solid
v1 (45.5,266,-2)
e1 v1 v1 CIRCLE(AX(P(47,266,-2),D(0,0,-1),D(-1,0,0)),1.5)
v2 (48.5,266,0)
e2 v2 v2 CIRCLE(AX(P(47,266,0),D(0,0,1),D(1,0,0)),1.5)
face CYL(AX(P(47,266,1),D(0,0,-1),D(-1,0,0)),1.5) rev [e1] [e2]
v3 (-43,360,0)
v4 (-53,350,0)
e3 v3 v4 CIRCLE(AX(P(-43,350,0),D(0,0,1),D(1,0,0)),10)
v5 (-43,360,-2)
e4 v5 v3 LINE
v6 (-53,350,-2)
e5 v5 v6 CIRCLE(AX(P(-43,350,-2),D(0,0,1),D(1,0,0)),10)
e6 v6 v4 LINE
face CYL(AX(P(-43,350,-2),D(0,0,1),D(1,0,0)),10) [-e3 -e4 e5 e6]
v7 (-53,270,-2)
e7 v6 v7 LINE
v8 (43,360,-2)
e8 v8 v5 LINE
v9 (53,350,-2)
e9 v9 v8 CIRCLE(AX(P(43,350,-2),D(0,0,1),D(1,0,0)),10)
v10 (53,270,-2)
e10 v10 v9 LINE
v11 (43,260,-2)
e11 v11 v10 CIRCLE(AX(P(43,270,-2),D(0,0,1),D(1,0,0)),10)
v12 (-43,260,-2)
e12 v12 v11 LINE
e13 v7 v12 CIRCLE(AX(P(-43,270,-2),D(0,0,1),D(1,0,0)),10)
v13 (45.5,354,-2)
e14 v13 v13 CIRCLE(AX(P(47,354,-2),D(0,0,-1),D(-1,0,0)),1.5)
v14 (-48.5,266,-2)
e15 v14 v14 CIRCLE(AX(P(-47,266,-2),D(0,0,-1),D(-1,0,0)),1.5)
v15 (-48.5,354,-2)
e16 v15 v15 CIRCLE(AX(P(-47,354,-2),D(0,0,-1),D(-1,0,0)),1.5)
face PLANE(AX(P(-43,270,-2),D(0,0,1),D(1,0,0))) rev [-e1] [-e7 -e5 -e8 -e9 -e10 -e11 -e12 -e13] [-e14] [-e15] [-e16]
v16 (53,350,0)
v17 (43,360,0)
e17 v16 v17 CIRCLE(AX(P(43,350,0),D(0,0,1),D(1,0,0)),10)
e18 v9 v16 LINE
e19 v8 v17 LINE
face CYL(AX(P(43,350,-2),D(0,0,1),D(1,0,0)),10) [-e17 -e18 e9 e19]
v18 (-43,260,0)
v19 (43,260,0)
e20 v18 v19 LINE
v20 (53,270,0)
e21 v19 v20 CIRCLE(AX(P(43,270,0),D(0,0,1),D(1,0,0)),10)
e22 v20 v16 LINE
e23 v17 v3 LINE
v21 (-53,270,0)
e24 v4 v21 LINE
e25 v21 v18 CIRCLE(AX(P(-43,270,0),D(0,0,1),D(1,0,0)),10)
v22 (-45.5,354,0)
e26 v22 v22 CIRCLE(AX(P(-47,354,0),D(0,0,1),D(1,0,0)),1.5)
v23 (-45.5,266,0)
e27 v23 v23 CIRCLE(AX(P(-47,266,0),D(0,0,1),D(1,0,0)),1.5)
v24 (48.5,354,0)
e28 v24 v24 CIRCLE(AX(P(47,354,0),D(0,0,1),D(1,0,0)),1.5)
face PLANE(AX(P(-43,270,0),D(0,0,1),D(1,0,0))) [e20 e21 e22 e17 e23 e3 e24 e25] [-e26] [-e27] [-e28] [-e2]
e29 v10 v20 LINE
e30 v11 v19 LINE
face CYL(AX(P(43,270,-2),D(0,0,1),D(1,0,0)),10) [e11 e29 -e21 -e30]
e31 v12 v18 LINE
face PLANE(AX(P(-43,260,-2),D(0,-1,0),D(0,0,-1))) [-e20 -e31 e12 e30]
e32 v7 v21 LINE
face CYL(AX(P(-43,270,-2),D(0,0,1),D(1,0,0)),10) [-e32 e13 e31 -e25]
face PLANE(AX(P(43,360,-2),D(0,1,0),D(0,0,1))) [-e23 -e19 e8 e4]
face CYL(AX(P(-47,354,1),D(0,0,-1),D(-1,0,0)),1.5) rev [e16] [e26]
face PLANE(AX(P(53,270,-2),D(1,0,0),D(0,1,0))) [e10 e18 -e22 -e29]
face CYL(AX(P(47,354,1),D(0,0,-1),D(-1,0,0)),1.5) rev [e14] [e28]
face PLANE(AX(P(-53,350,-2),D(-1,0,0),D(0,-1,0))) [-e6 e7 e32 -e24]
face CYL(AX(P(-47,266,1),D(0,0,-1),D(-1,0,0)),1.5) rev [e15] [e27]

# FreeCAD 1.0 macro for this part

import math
import FreeCAD as App
import Part
import Sketcher

V = App.Vector
Q = App.Units.Quantity

doc = App.newDocument("Part")
params = doc.addObject("Spreadsheet::Sheet", "Params")
for row, (alias, value) in enumerate([
    ("sketch1_radius", "10 mm"),
    ("sketch1_width", "86 mm"),
    ("sketch1_height", "80 mm"),
    ("pad1_length", "2 mm"),
    ("sketch2_diameter", "3 mm"),
    ("pocket1_length", "3 mm"),
], start=1):
    params.set(f"A{row}", alias)
    params.set(f"B{row}", "=" + value)
    params.setAlias(f"B{row}", alias)

body = doc.addObject("PartDesign::Body", "Body")

sketch1 = body.newObject("Sketcher::SketchObject", "Sketch")
sketch1.AttachmentSupport = (doc.getObject("XY_Plane"), [""])
sketch1.MapMode = "FlatFace"
sketch1.addGeometry(Part.LineSegment(V(-43, 260, 0), V(43, 260, 0)), False)
sketch1.addGeometry(Part.ArcOfCircle(Part.Circle(V(43, 270, 0), V(0, 0, 1), 10), math.radians(-90), math.radians(0)), False)
sketch1.addGeometry(Part.LineSegment(V(53, 270, 0), V(53, 350, 0)), False)
sketch1.addGeometry(Part.ArcOfCircle(Part.Circle(V(43, 350, 0), V(0, 0, 1), 10), math.radians(0), math.radians(90)), False)
sketch1.addGeometry(Part.LineSegment(V(43, 360, 0), V(-43, 360, 0)), False)
sketch1.addGeometry(Part.ArcOfCircle(Part.Circle(V(-43, 350, 0), V(0, 0, 1), 10), math.radians(90), math.radians(180)), False)
sketch1.addGeometry(Part.LineSegment(V(-53, 350, 0), V(-53, 270, 0)), False)
sketch1.addGeometry(Part.ArcOfCircle(Part.Circle(V(-43, 270, 0), V(0, 0, 1), 10), math.radians(180), math.radians(270)), False)
sketch1.addConstraint(Sketcher.Constraint("Tangent", 0, 2, 1, 1))
sketch1.addConstraint(Sketcher.Constraint("Tangent", 1, 2, 2, 1))
sketch1.addConstraint(Sketcher.Constraint("Tangent", 2, 2, 3, 1))
sketch1.addConstraint(Sketcher.Constraint("Tangent", 3, 2, 4, 1))
sketch1.addConstraint(Sketcher.Constraint("Tangent", 4, 2, 5, 1))
sketch1.addConstraint(Sketcher.Constraint("Tangent", 5, 2, 6, 1))
sketch1.addConstraint(Sketcher.Constraint("Tangent", 6, 2, 7, 1))
sketch1.addConstraint(Sketcher.Constraint("Tangent", 7, 2, 0, 1))
sketch1.addConstraint(Sketcher.Constraint("Horizontal", 0))
sketch1.addConstraint(Sketcher.Constraint("Vertical", 2))
sketch1.addConstraint(Sketcher.Constraint("Horizontal", 4))
sketch1.addConstraint(Sketcher.Constraint("Vertical", 6))
sketch1.addConstraint(Sketcher.Constraint("Equal", 1, 3))
sketch1.addConstraint(Sketcher.Constraint("Equal", 3, 5))
sketch1.addConstraint(Sketcher.Constraint("Equal", 5, 7))
sketch1.addConstraint(Sketcher.Constraint("Radius", 1, Q("10 mm")))
sketch1.addConstraint(Sketcher.Constraint("DistanceX", 0, 1, 0, 2, Q("86 mm")))
sketch1.addConstraint(Sketcher.Constraint("DistanceY", 2, 1, 2, 2, Q("80 mm")))
sketch1.addConstraint(Sketcher.Constraint("DistanceX", -1, 1, 1, 3, Q("43 mm")))
sketch1.addConstraint(Sketcher.Constraint("DistanceY", -1, 1, 1, 3, Q("270 mm")))
sketch1.setExpression("Constraints[15]", "Params.sketch1_radius")
sketch1.setExpression("Constraints[16]", "Params.sketch1_width")
sketch1.setExpression("Constraints[17]", "Params.sketch1_height")
pad1 = body.newObject("PartDesign::Pad", "Pad")
pad1.Profile = sketch1
pad1.setExpression("Length", "Params.pad1_length")
pad1.Reversed = True

sketch2 = body.newObject("Sketcher::SketchObject", "Sketch001")
sketch2.AttachmentSupport = (doc.getObject("XY_Plane"), [""])
sketch2.MapMode = "FlatFace"
sketch2.AttachmentOffset = App.Placement(V(0, 0, -2), App.Rotation())
sketch2.addGeometry(Part.Circle(V(-47, 266, 0), V(0, 0, 1), 1.5), False)
sketch2.addGeometry(Part.Circle(V(-47, 354, 0), V(0, 0, 1), 1.5), False)
sketch2.addGeometry(Part.Circle(V(47, 354, 0), V(0, 0, 1), 1.5), False)
sketch2.addGeometry(Part.Circle(V(47, 266, 0), V(0, 0, 1), 1.5), False)
sketch2.addConstraint(Sketcher.Constraint("Equal", 0, 1))
sketch2.addConstraint(Sketcher.Constraint("Equal", 1, 2))
sketch2.addConstraint(Sketcher.Constraint("Equal", 2, 3))
sketch2.addConstraint(Sketcher.Constraint("Symmetric", 1, 3, 2, 3, -2))
sketch2.addConstraint(Sketcher.Constraint("Symmetric", 0, 3, 3, 3, -2))
sketch2.addConstraint(Sketcher.Constraint("Vertical", 0, 3, 1, 3))
sketch2.addConstraint(Sketcher.Constraint("Diameter", 0, Q("3 mm")))
sketch2.addConstraint(Sketcher.Constraint("DistanceX", 0, 3, -1, 1, Q("47 mm")))
sketch2.addConstraint(Sketcher.Constraint("DistanceY", -1, 1, 0, 3, Q("266 mm")))
sketch2.addConstraint(Sketcher.Constraint("DistanceY", -1, 1, 1, 3, Q("354 mm")))
sketch2.setExpression("Constraints[6]", "Params.sketch2_diameter")
pocket1 = body.newObject("PartDesign::Pocket", "Pocket")
pocket1.Profile = sketch2
pocket1.setExpression("Length", "Params.pocket1_length")
pocket1.Reversed = True

doc.recompute()
